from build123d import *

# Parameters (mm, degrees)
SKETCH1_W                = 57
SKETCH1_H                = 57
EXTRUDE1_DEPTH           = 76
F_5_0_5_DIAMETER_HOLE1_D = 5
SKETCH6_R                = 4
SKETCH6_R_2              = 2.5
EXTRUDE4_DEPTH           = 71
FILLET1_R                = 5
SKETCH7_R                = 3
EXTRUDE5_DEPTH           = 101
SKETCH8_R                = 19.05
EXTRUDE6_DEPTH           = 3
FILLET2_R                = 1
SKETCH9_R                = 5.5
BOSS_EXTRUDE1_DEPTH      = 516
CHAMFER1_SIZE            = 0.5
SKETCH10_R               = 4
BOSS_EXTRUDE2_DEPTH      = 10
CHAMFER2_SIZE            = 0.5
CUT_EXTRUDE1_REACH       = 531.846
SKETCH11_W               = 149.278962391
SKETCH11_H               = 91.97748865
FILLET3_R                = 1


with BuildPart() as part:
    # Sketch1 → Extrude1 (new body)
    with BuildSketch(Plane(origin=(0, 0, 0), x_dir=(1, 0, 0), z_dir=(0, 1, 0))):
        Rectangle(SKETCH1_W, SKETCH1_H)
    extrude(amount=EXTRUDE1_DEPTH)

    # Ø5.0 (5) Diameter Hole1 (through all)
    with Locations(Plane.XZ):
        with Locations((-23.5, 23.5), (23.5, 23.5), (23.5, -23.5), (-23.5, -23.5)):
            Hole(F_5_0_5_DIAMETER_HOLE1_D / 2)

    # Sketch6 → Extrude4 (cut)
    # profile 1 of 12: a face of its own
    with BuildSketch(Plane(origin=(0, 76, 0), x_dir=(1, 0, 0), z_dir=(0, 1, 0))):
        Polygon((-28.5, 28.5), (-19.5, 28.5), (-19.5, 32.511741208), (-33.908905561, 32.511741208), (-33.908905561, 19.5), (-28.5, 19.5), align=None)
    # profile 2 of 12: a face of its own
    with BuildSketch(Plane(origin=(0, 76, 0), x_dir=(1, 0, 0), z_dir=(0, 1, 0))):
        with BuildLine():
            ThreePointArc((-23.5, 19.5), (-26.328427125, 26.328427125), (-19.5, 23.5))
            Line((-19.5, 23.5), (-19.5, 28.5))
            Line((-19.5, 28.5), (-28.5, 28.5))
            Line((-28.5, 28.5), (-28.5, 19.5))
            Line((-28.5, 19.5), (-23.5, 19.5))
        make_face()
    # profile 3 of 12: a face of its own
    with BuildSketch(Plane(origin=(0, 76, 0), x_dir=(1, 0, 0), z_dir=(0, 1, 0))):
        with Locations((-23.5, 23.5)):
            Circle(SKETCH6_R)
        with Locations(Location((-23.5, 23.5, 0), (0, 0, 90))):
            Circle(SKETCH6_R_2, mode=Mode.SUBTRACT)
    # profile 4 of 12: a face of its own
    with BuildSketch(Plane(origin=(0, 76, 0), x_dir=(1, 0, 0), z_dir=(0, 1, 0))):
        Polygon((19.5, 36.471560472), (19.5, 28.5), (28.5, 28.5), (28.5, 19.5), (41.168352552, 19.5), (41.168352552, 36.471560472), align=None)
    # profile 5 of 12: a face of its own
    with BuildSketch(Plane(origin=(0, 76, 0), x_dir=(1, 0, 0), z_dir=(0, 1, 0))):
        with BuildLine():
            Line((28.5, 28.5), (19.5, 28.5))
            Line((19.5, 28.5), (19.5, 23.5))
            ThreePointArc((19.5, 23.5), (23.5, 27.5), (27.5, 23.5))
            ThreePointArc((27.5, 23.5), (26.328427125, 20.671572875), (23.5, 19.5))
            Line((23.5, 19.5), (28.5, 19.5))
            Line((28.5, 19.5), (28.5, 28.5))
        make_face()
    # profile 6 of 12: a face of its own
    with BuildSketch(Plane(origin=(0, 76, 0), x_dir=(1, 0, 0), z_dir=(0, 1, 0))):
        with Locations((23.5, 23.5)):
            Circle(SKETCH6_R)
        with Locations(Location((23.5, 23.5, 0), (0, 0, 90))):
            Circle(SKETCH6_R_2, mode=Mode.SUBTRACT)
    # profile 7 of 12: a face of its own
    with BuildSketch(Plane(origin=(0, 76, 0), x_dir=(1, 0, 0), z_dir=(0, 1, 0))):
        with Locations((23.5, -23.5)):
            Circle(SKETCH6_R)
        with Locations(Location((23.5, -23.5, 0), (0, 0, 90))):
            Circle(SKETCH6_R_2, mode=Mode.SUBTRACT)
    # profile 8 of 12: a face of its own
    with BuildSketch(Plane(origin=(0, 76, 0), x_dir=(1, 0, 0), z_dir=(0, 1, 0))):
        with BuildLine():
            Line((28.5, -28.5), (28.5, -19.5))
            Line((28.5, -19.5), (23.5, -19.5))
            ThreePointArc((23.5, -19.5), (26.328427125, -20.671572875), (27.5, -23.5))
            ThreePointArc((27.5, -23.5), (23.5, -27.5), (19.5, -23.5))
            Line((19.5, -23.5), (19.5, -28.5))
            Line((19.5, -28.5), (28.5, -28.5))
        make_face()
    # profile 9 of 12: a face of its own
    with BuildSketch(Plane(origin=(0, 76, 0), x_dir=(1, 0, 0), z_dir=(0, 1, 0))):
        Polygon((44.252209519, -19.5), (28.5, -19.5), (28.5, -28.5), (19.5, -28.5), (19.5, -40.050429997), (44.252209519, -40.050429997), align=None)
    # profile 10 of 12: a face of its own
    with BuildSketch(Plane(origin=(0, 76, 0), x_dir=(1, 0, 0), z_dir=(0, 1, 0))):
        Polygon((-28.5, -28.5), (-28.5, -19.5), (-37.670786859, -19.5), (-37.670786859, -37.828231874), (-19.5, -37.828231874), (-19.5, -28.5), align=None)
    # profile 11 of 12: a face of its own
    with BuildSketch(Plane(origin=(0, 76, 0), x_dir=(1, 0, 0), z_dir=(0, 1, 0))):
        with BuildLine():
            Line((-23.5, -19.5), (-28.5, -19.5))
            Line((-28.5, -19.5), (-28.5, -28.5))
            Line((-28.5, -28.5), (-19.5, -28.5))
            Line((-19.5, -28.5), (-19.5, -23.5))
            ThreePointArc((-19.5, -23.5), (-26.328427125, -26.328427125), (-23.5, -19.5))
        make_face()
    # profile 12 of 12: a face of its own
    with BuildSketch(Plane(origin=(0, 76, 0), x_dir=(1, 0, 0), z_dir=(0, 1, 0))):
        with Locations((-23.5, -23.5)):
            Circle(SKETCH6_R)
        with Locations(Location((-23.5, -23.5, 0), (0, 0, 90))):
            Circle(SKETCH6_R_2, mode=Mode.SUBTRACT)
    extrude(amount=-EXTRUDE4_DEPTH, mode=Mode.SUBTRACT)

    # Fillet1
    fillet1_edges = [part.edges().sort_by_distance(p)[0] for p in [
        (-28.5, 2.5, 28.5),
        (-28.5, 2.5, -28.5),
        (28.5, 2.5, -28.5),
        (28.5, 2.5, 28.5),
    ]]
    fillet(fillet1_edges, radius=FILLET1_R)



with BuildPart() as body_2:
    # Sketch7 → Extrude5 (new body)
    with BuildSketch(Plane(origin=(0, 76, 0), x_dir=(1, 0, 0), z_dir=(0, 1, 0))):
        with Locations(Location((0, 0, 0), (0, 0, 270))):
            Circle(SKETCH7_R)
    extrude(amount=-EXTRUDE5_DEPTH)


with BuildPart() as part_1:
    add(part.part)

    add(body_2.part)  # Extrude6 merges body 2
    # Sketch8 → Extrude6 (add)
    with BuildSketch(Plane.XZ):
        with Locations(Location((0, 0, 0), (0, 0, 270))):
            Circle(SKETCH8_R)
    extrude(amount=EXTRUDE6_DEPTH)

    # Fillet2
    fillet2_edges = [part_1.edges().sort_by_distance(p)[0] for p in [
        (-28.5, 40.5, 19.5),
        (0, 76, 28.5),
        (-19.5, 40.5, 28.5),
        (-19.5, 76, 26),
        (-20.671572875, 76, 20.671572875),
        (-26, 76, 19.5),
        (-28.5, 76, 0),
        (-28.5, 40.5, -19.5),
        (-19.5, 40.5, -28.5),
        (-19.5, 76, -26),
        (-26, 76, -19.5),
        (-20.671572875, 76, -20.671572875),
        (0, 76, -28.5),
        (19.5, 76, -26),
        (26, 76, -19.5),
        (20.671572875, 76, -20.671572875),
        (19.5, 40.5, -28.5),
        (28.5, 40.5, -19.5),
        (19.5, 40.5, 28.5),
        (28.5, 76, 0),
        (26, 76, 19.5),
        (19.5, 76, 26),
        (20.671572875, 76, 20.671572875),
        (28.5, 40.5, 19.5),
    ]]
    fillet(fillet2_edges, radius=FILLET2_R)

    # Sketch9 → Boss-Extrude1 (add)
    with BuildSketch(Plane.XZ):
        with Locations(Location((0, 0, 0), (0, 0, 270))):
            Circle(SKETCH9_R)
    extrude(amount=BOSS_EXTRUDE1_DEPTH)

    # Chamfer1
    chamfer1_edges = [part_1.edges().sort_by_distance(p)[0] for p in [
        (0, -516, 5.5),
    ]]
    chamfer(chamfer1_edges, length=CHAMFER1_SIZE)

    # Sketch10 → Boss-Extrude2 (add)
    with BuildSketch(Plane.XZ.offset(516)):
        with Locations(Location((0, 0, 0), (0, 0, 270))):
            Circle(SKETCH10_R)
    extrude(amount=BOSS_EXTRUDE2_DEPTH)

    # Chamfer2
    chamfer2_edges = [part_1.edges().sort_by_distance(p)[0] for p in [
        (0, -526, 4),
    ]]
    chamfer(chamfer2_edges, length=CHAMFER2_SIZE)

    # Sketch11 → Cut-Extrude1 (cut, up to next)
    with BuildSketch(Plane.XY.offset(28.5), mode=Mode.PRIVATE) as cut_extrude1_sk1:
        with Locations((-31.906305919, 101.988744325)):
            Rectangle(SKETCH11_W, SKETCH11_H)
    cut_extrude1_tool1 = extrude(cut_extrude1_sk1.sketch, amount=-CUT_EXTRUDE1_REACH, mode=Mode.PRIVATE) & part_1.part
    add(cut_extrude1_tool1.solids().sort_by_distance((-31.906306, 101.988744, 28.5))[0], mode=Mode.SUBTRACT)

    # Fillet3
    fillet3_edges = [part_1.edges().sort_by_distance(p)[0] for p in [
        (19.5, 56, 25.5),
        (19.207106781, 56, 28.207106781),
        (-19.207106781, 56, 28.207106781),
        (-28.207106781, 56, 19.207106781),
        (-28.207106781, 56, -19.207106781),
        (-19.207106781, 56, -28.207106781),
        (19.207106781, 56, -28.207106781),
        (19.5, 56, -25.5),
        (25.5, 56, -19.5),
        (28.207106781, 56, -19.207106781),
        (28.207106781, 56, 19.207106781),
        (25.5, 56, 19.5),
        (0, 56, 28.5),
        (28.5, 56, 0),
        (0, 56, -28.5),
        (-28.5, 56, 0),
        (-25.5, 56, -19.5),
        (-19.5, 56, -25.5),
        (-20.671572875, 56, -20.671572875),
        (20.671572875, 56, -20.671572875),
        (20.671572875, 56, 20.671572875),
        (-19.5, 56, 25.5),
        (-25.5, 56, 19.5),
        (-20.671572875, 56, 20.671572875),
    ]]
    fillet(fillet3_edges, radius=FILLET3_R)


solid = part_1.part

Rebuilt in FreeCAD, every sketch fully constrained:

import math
import FreeCAD as App
import Part
import Sketcher
from FreeCAD import Vector


def edges_at(feature, points):
    """Names of the edges that pass closest to the given points."""
    edges = feature.Shape.Edges
    near = lambda p: min(range(len(edges)), key=lambda i: edges[i].distToShape(Part.Vertex(*p))[0])
    return sorted({f"Edge{near(p) + 1}" for p in points})


def add_polygon(sketch, points):
    """Adds a closed chain of lines whose ends are joined by coincident constraints."""
    first, n = sketch.GeometryCount, len(points)
    for a, b in zip(points, points[1:] + points[:1]):
        sketch.addGeometry(Part.LineSegment(App.Vector(*a, 0), App.Vector(*b, 0)), False)
    for i in range(n):
        sketch.addConstraint(Sketcher.Constraint("Coincident", first + i, 2, first + (i + 1) % n, 1))

doc = App.newDocument("Part")
body = doc.addObject("PartDesign::Body", "Body")

# Sketch on XZ plane
sketch1 = body.newObject("Sketcher::SketchObject", "Sketch")
sketch1.AttachmentSupport = (doc.getObject("XZ_Plane"), [""])
sketch1.MapMode = "FlatFace"
add_polygon(sketch1, [(-28, -28), (-28, 28), (28, 28), (28, -28)])  # lines 0-3
sketch1.addConstraint(Sketcher.Constraint("Vertical", 0))
sketch1.addConstraint(Sketcher.Constraint("Horizontal", 1))
sketch1.addConstraint(Sketcher.Constraint("Vertical", 2))
sketch1.addConstraint(Sketcher.Constraint("Horizontal", 3))
sketch1.addConstraint(Sketcher.Constraint("Symmetric", 0, 2, 2, 2, -1, 1))
sketch1.addConstraint(Sketcher.Constraint("Equal", 3, 0))
sketch1.addConstraint(Sketcher.Constraint("DistanceX", 1, 1, 1, 2, 57.0))
pad1 = body.newObject("PartDesign::Pad", "Pad")
pad1.Profile = sketch1
pad1.Length = 76
pad1.Reversed = True

# Sketch on XZ plane
sketch2 = body.newObject("Sketcher::SketchObject", "Sketch001")
sketch2.AttachmentSupport = (doc.getObject("XZ_Plane"), [""])
sketch2.MapMode = "FlatFace"
sketch2.addGeometry(Part.Circle(Vector(-23.5, 23.5, 0), Vector(0, 0, 1), 2.5), False)
sketch2.addGeometry(Part.Circle(Vector(23.5, 23.5, 0), Vector(0, 0, 1), 2.5), False)
sketch2.addGeometry(Part.Circle(Vector(23.5, -23.5, 0), Vector(0, 0, 1), 2.5), False)
sketch2.addGeometry(Part.Circle(Vector(-23.5, -23.5, 0), Vector(0, 0, 1), 2.5), False)
sketch2.addConstraint(Sketcher.Constraint("Equal", 0, 1))
sketch2.addConstraint(Sketcher.Constraint("Equal", 1, 2))
sketch2.addConstraint(Sketcher.Constraint("Equal", 2, 3))
sketch2.addConstraint(Sketcher.Constraint("Symmetric", 0, 3, 2, 3, -1, 1))
sketch2.addConstraint(Sketcher.Constraint("Symmetric", 1, 3, 3, 3, -1, 1))
sketch2.addConstraint(Sketcher.Constraint("Symmetric", 0, 3, 1, 3, -2))
sketch2.addConstraint(Sketcher.Constraint("Diameter", 0, 5.0))
sketch2.addConstraint(Sketcher.Constraint("DistanceX", 0, 3, 1, 3, 47.0))
sketch2.addConstraint(Sketcher.Constraint("DistanceY", 2, 3, 1, 3, 47.0))
doc.recompute()
hole = body.newObject("PartDesign::Hole", "Hole")
hole.Profile = sketch2
hole.ThreadType = "None"
hole.Diameter = 5
hole.DepthType = "ThroughAll"

# Sketch on XZ plane
sketch3 = body.newObject("Sketcher::SketchObject", "Sketch002")
sketch3.AttachmentSupport = (doc.getObject("XZ_Plane"), [""])
sketch3.MapMode = "FlatFace"
sketch3.AttachmentOffset = App.Placement(Vector(0, 0, -76), App.Rotation())
sketch3.addGeometry(Part.LineSegment(Vector(-19.5, -32.5, 0), Vector(-33.9, -32.5, 0)), False)
sketch3.addGeometry(Part.LineSegment(Vector(-33.9, -32.5, 0), Vector(-33.9, -19.5, 0)), False)
sketch3.addGeometry(Part.LineSegment(Vector(-33.9, -19.5, 0), Vector(-23.5, -19.5, 0)), False)
sketch3.addGeometry(Part.ArcOfCircle(Part.Circle(Vector(-23.5, -23.5, 0), Vector(0, 0, 1), 4), math.radians(0), math.radians(90)), False)
sketch3.addGeometry(Part.LineSegment(Vector(-19.5, -23.5, 0), Vector(-19.5, -32.5, 0)), False)
sketch3.addGeometry(Part.Circle(Vector(-23.5, -23.5, 0), Vector(0, 0, 1), 2.5), False)
sketch3.addGeometry(Part.LineSegment(Vector(19.5, -36.5, 0), Vector(19.5, -23.5, 0)), False)
sketch3.addGeometry(Part.ArcOfCircle(Part.Circle(Vector(23.5, -23.5, 0), Vector(0, 0, 1), 4), math.radians(90), math.radians(180)), False)
sketch3.addGeometry(Part.LineSegment(Vector(23.5, -19.5, 0), Vector(41.2, -19.5, 0)), False)
sketch3.addGeometry(Part.LineSegment(Vector(41.2, -19.5, 0), Vector(41.2, -36.5, 0)), False)
sketch3.addGeometry(Part.LineSegment(Vector(41.2, -36.5, 0), Vector(19.5, -36.5, 0)), False)
sketch3.addGeometry(Part.Circle(Vector(23.5, -23.5, 0), Vector(0, 0, 1), 2.5), False)
sketch3.addGeometry(Part.ArcOfCircle(Part.Circle(Vector(23.5, 23.5, 0), Vector(0, 0, 1), 4), math.radians(180), math.radians(270)), False)
sketch3.addGeometry(Part.LineSegment(Vector(19.5, 23.5, 0), Vector(19.5, 40.1, 0)), False)
sketch3.addGeometry(Part.LineSegment(Vector(19.5, 40.1, 0), Vector(44.3, 40.1, 0)), False)
sketch3.addGeometry(Part.LineSegment(Vector(44.3, 40.1, 0), Vector(44.3, 19.5, 0)), False)
sketch3.addGeometry(Part.LineSegment(Vector(44.3, 19.5, 0), Vector(23.5, 19.5, 0)), False)
sketch3.addGeometry(Part.Circle(Vector(23.5, 23.5, 0), Vector(0, 0, 1), 2.5), False)
sketch3.addGeometry(Part.LineSegment(Vector(-37.7, 19.5, 0), Vector(-37.7, 37.8, 0)), False)
sketch3.addGeometry(Part.LineSegment(Vector(-37.7, 37.8, 0), Vector(-19.5, 37.8, 0)), False)
sketch3.addGeometry(Part.LineSegment(Vector(-19.5, 37.8, 0), Vector(-19.5, 23.5, 0)), False)
sketch3.addGeometry(Part.ArcOfCircle(Part.Circle(Vector(-23.5, 23.5, 0), Vector(0, 0, 1), 4), math.radians(-90), math.radians(0)), False)
sketch3.addGeometry(Part.LineSegment(Vector(-23.5, 19.5, 0), Vector(-37.7, 19.5, 0)), False)
sketch3.addGeometry(Part.Circle(Vector(-23.5, 23.5, 0), Vector(0, 0, 1), 2.5), False)
sketch3.addConstraint(Sketcher.Constraint("Coincident", 0, 2, 1, 1))
sketch3.addConstraint(Sketcher.Constraint("Coincident", 1, 2, 2, 1))
sketch3.addConstraint(Sketcher.Constraint("Tangent", 2, 2, 3, 2))
sketch3.addConstraint(Sketcher.Constraint("Tangent", 3, 1, 4, 1))
sketch3.addConstraint(Sketcher.Constraint("Coincident", 4, 2, 0, 1))
sketch3.addConstraint(Sketcher.Constraint("Tangent", 6, 2, 7, 2))
sketch3.addConstraint(Sketcher.Constraint("Tangent", 7, 1, 8, 1))
sketch3.addConstraint(Sketcher.Constraint("Coincident", 8, 2, 9, 1))
sketch3.addConstraint(Sketcher.Constraint("Coincident", 9, 2, 10, 1))
sketch3.addConstraint(Sketcher.Constraint("Coincident", 10, 2, 6, 1))
sketch3.addConstraint(Sketcher.Constraint("Tangent", 12, 1, 13, 1))
sketch3.addConstraint(Sketcher.Constraint("Coincident", 13, 2, 14, 1))
sketch3.addConstraint(Sketcher.Constraint("Coincident", 14, 2, 15, 1))
sketch3.addConstraint(Sketcher.Constraint("Coincident", 15, 2, 16, 1))
sketch3.addConstraint(Sketcher.Constraint("Tangent", 16, 2, 12, 2))
sketch3.addConstraint(Sketcher.Constraint("Coincident", 18, 2, 19, 1))
sketch3.addConstraint(Sketcher.Constraint("Coincident", 19, 2, 20, 1))
sketch3.addConstraint(Sketcher.Constraint("Tangent", 20, 2, 21, 2))
sketch3.addConstraint(Sketcher.Constraint("Tangent", 21, 1, 22, 1))
sketch3.addConstraint(Sketcher.Constraint("Coincident", 22, 2, 18, 1))
sketch3.addConstraint(Sketcher.Constraint("Horizontal", 0))
sketch3.addConstraint(Sketcher.Constraint("Vertical", 1))
sketch3.addConstraint(Sketcher.Constraint("Horizontal", 2))
sketch3.addConstraint(Sketcher.Constraint("Vertical", 4))
sketch3.addConstraint(Sketcher.Constraint("Vertical", 6))
sketch3.addConstraint(Sketcher.Constraint("Horizontal", 8))
sketch3.addConstraint(Sketcher.Constraint("Vertical", 9))
sketch3.addConstraint(Sketcher.Constraint("Horizontal", 10))
sketch3.addConstraint(Sketcher.Constraint("Vertical", 13))
sketch3.addConstraint(Sketcher.Constraint("Horizontal", 14))
sketch3.addConstraint(Sketcher.Constraint("Vertical", 15))
sketch3.addConstraint(Sketcher.Constraint("Horizontal", 16))
sketch3.addConstraint(Sketcher.Constraint("Vertical", 18))
sketch3.addConstraint(Sketcher.Constraint("Horizontal", 19))
sketch3.addConstraint(Sketcher.Constraint("Vertical", 20))
sketch3.addConstraint(Sketcher.Constraint("Horizontal", 22))
sketch3.addConstraint(Sketcher.Constraint("Coincident", 5, 3, 3, 3))
sketch3.addConstraint(Sketcher.Constraint("Coincident", 11, 3, 7, 3))
sketch3.addConstraint(Sketcher.Constraint("Coincident", 17, 3, 12, 3))
sketch3.addConstraint(Sketcher.Constraint("Coincident", 23, 3, 21, 3))
sketch3.addConstraint(Sketcher.Constraint("Equal", 3, 7))
sketch3.addConstraint(Sketcher.Constraint("Equal", 5, 11))
sketch3.addConstraint(Sketcher.Constraint("Equal", 7, 12))
sketch3.addConstraint(Sketcher.Constraint("Equal", 11, 17))
sketch3.addConstraint(Sketcher.Constraint("Equal", 12, 21))
sketch3.addConstraint(Sketcher.Constraint("Equal", 17, 23))
sketch3.addConstraint(Sketcher.Constraint("Symmetric", 3, 3, 12, 3, -1, 1))
sketch3.addConstraint(Sketcher.Constraint("Symmetric", 7, 3, 21, 3, -1, 1))
sketch3.addConstraint(Sketcher.Constraint("Symmetric", 3, 3, 7, 3, -2))
sketch3.addConstraint(Sketcher.Constraint("Diameter", 5, 5.0))
sketch3.addConstraint(Sketcher.Constraint("Radius", 3, 4.0))
sketch3.addConstraint(Sketcher.Constraint("DistanceX", 3, 3, 7, 3, 47.0))
sketch3.addConstraint(Sketcher.Constraint("DistanceY", 7, 3, 12, 3, 47.0))
sketch3.addConstraint(Sketcher.Constraint("DistanceX", 14, 1, 14, 2, 24.75221))
sketch3.addConstraint(Sketcher.Constraint("DistanceY", 1, 1, 1, 2, 13.011741))
sketch3.addConstraint(Sketcher.Constraint("DistanceY", 6, 1, 6, 2, 12.97156))
sketch3.addConstraint(Sketcher.Constraint("DistanceY", 13, 1, 13, 2, 16.55043))
sketch3.addConstraint(Sketcher.Constraint("DistanceY", 18, 1, 18, 2, 18.328232))
sketch3.addConstraint(Sketcher.Constraint("DistanceX", 0, 2, 0, 1, 14.408906))
sketch3.addConstraint(Sketcher.Constraint("DistanceX", 8, 1, 8, 2, 17.668353))
sketch3.addConstraint(Sketcher.Constraint("DistanceX", 19, 1, 19, 2, 18.170787))
pocket1 = body.newObject("PartDesign::Pocket", "Pocket")
pocket1.Profile = sketch3
pocket1.Length = 71
pocket1.Reversed = True
doc.recompute()

fillet = body.newObject("PartDesign::Fillet", "Fillet")
fillet.Base = (pocket1, edges_at(pocket1, [
    (-28.5, 2.5, 28.5),
    (-28.5, 2.5, -28.5),
    (28.5, 2.5, -28.5),
    (28.5, 2.5, 28.5),
]))
fillet.Radius = 5
body2 = doc.addObject("PartDesign::Body", "Body001")

# Sketch on XZ plane
sketch4 = body2.newObject("Sketcher::SketchObject", "Sketch003")
sketch4.AttachmentSupport = (doc.getObject("XZ_Plane001"), [""])
sketch4.MapMode = "FlatFace"
sketch4.AttachmentOffset = App.Placement(Vector(0, 0, -76), App.Rotation())
sketch4.addGeometry(Part.Circle(Vector(0, 0, 0), Vector(0, 0, 1), 3), False)
sketch4.addConstraint(Sketcher.Constraint("Coincident", 0, 3, -1, 1))
sketch4.addConstraint(Sketcher.Constraint("Diameter", 0, 6.0))
pad2 = body2.newObject("PartDesign::Pad", "Pad001")
pad2.Profile = sketch4
pad2.Length = 101
doc.recompute()

boolean = body.newObject("PartDesign::Boolean", "Boolean")
boolean.Type = "Fuse"
boolean.addObjects([body2])

# Sketch on XZ plane
sketch5 = body.newObject("Sketcher::SketchObject", "Sketch004")
sketch5.AttachmentSupport = (doc.getObject("XZ_Plane"), [""])
sketch5.MapMode = "FlatFace"
sketch5.addGeometry(Part.Circle(Vector(0, 0, 0), Vector(0, 0, 1), 19), False)
sketch5.addConstraint(Sketcher.Constraint("Coincident", 0, 3, -1, 1))
sketch5.addConstraint(Sketcher.Constraint("Diameter", 0, 38.1))
pad3 = body.newObject("PartDesign::Pad", "Pad002")
pad3.Profile = sketch5
pad3.Length = 3
doc.recompute()

fillet2 = body.newObject("PartDesign::Fillet", "Fillet001")
fillet2.Base = (pad3, edges_at(pad3, [
    (-28.5, 40.5, 19.5),
    (0, 76, 28.5),
    (-19.5, 40.5, 28.5),
    (-19.5, 76, 26),
    (-20.672, 76, 20.672),
    (-26, 76, 19.5),
    (-28.5, 76, 0),
    (-28.5, 40.5, -19.5),
    (-19.5, 40.5, -28.5),
    (-19.5, 76, -26),
    (-26, 76, -19.5),
    (-20.672, 76, -20.672),
    (0, 76, -28.5),
    (19.5, 76, -26),
    (26, 76, -19.5),
    (20.672, 76, -20.672),
    (19.5, 40.5, -28.5),
    (28.5, 40.5, -19.5),
    (19.5, 40.5, 28.5),
    (28.5, 76, 0),
    (26, 76, 19.5),
    (19.5, 76, 26),
    (20.672, 76, 20.672),
    (28.5, 40.5, 19.5),
]))
fillet2.Radius = 1

# Sketch on XZ plane
sketch6 = body.newObject("Sketcher::SketchObject", "Sketch005")
sketch6.AttachmentSupport = (doc.getObject("XZ_Plane"), [""])
sketch6.MapMode = "FlatFace"
sketch6.addGeometry(Part.Circle(Vector(0, 0, 0), Vector(0, 0, 1), 6), False)
sketch6.addConstraint(Sketcher.Constraint("Coincident", 0, 3, -1, 1))
sketch6.addConstraint(Sketcher.Constraint("Diameter", 0, 11.0))
pad4 = body.newObject("PartDesign::Pad", "Pad003")
pad4.Profile = sketch6
pad4.Length = 516
doc.recompute()

chamfer = body.newObject("PartDesign::Chamfer", "Chamfer")
chamfer.Base = (pad4, edges_at(pad4, [(0, -516, 5.5)]))
chamfer.Size = 0.5

# Sketch on XZ plane
sketch7 = body.newObject("Sketcher::SketchObject", "Sketch006")
sketch7.AttachmentSupport = (doc.getObject("XZ_Plane"), [""])
sketch7.MapMode = "FlatFace"
sketch7.AttachmentOffset = App.Placement(Vector(0, 0, 516), App.Rotation())
sketch7.addGeometry(Part.Circle(Vector(0, 0, 0), Vector(0, 0, 1), 4), False)
sketch7.addConstraint(Sketcher.Constraint("Coincident", 0, 3, -1, 1))
sketch7.addConstraint(Sketcher.Constraint("Diameter", 0, 8.0))
pad5 = body.newObject("PartDesign::Pad", "Pad004")
pad5.Profile = sketch7
pad5.Length = 10
doc.recompute()

chamfer2 = body.newObject("PartDesign::Chamfer", "Chamfer001")
chamfer2.Base = (pad5, edges_at(pad5, [(0, -526, 4)]))
chamfer2.Size = 0.5

# Sketch on XY plane
sketch8 = body.newObject("Sketcher::SketchObject", "Sketch007")
sketch8.AttachmentSupport = (doc.getObject("XY_Plane"), [""])
sketch8.MapMode = "FlatFace"
sketch8.AttachmentOffset = App.Placement(Vector(0, 0, 28.5), App.Rotation())
add_polygon(sketch8, [(-107, 148), (-107, 56), (43, 56), (43, 148)])  # lines 0-3
sketch8.addConstraint(Sketcher.Constraint("Vertical", 0))
sketch8.addConstraint(Sketcher.Constraint("Horizontal", 1))
sketch8.addConstraint(Sketcher.Constraint("Vertical", 2))
sketch8.addConstraint(Sketcher.Constraint("Horizontal", 3))
sketch8.addConstraint(Sketcher.Constraint("DistanceY", -1, 1, 0, 2, 56.0))
sketch8.addConstraint(Sketcher.Constraint("DistanceY", 0, 2, 0, 1, 91.977489))
sketch8.addConstraint(Sketcher.Constraint("DistanceX", 1, 1, 1, 2, 149.278962))
sketch8.addConstraint(Sketcher.Constraint("DistanceX", 0, 2, -1, 1, 106.545787))
pocket2 = body.newObject("PartDesign::Pocket", "Pocket001")
pocket2.Profile = sketch8
pocket2.Length = 57
doc.recompute()

fillet3 = body.newObject("PartDesign::Fillet", "Fillet002")
fillet3.Base = (pocket2, edges_at(pocket2, [
    (19.5, 56, 25.5),
    (19.207, 56, 28.207),
    (-19.207, 56, 28.207),
    (-28.207, 56, 19.207),
    (-28.207, 56, -19.207),
    (-19.207, 56, -28.207),
    (19.207, 56, -28.207),
    (19.5, 56, -25.5),
    (25.5, 56, -19.5),
    (28.207, 56, -19.207),
    (28.207, 56, 19.207),
    (25.5, 56, 19.5),
    (0, 56, 28.5),
    (28.5, 56, 0),
    (0, 56, -28.5),
    (-28.5, 56, 0),
    (-25.5, 56, -19.5),
    (-19.5, 56, -25.5),
    (-20.672, 56, -20.672),
    (20.672, 56, -20.672),
    (20.672, 56, 20.672),
    (-19.5, 56, 25.5),
    (-25.5, 56, 19.5),
    (-20.672, 56, 20.672),
]))
fillet3.Radius = 1

doc.recompute()
